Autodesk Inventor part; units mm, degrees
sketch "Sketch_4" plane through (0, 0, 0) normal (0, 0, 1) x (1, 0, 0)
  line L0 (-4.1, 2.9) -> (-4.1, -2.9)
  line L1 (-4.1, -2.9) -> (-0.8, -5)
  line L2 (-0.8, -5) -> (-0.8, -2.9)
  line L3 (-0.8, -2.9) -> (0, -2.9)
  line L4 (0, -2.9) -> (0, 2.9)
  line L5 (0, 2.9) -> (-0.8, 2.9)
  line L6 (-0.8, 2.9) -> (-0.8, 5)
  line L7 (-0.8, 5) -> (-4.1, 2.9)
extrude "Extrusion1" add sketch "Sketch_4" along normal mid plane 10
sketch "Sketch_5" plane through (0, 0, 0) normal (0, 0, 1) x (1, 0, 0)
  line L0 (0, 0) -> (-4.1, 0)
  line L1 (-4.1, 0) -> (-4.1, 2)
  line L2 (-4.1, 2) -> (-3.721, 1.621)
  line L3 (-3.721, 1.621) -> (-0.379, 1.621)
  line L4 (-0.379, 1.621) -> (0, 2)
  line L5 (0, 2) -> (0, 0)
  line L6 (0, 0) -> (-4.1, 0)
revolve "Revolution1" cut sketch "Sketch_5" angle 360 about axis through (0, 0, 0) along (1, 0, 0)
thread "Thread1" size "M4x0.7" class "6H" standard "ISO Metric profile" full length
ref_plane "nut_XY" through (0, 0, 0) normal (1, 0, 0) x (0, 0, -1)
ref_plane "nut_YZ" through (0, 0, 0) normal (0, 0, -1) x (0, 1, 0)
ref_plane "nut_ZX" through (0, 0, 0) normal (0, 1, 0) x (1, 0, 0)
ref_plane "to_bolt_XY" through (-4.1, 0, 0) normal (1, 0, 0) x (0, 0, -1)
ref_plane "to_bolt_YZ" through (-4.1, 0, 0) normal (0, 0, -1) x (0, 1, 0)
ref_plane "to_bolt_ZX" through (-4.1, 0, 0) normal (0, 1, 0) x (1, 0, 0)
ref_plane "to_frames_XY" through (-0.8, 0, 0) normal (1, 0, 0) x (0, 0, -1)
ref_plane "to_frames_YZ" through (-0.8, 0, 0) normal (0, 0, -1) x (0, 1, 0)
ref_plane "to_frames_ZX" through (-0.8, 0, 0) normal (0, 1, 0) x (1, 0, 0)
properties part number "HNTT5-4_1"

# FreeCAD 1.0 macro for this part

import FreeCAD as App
import Part
import Sketcher
from FreeCAD import Vector

doc = App.newDocument("Part")
body = doc.addObject("PartDesign::Body", "Body")

sketch1 = body.newObject("Sketcher::SketchObject", "Sketch")
sketch1.AttachmentSupport = (doc.getObject("XY_Plane"), [""])
sketch1.MapMode = "FlatFace"
sketch1.addGeometry([
    Part.LineSegment(Vector(-0.8, 5, 0), Vector(-4.1, 2.9, 0)),
    Part.LineSegment(Vector(-4.1, 2.9, 0), Vector(-4.1, -2.9, 0)),
    Part.LineSegment(Vector(-4.1, -2.9, 0), Vector(-0.8, -5, 0)),
    Part.LineSegment(Vector(-0.8, -5, 0), Vector(-0.8, -2.9, 0)),
    Part.LineSegment(Vector(-0.8, -2.9, 0), Vector(0, -2.9, 0)),
    Part.LineSegment(Vector(0, -2.9, 0), Vector(0, 2.9, 0)),
    Part.LineSegment(Vector(0, 2.9, 0), Vector(-0.8, 2.9, 0)),
    Part.LineSegment(Vector(-0.8, 2.9, 0), Vector(-0.8, 5, 0)),
], False)
sketch1.addConstraint([
    Sketcher.Constraint("Coincident", 0, 2, 1, 1),
    Sketcher.Constraint("Coincident", 1, 2, 2, 1),
    Sketcher.Constraint("Coincident", 2, 2, 3, 1),
    Sketcher.Constraint("Coincident", 3, 2, 4, 1),
    Sketcher.Constraint("Coincident", 4, 2, 5, 1),
    Sketcher.Constraint("Coincident", 5, 2, 6, 1),
    Sketcher.Constraint("Coincident", 6, 2, 7, 1),
    Sketcher.Constraint("Coincident", 7, 2, 0, 1),
    Sketcher.Constraint("Vertical", 1),
    Sketcher.Constraint("Vertical", 3),
    Sketcher.Constraint("Horizontal", 4),
    Sketcher.Constraint("Vertical", 5),
    Sketcher.Constraint("Horizontal", 6),
    Sketcher.Constraint("Vertical", 7),
    Sketcher.Constraint("Symmetric", 4, 2, 5, 2, -1, 1),
    Sketcher.Constraint("Symmetric", 2, 2, 7, 2, -1),
    Sketcher.Constraint("Horizontal", 1, 2, 3, 2),
    Sketcher.Constraint("Horizontal", 0, 2, 5, 2),
    Sketcher.Constraint("DistanceX", 4, 1, 4, 2, 0.8),
    Sketcher.Constraint("DistanceY", 1, 2, 1, 1, 5.8),
    Sketcher.Constraint("DistanceY", 3, 1, 3, 2, 2.1),
    Sketcher.Constraint("DistanceX", 0, 2, -1, 1, 4.1),
])
pad1 = body.newObject("PartDesign::Pad", "Pad")
pad1.Profile = sketch1
pad1.Length = 10
pad1.Midplane = True

sketch2 = body.newObject("Sketcher::SketchObject", "Sketch001")
sketch2.AttachmentSupport = (doc.getObject("XY_Plane"), [""])
sketch2.MapMode = "FlatFace"
sketch2.addGeometry([
    Part.LineSegment(Vector(-4.1, 0, 0), Vector(0, 0, 0)),
    Part.LineSegment(Vector(0, 0, 0), Vector(0, 2, 0)),
    Part.LineSegment(Vector(0, 2, 0), Vector(-0.4, 1.6, 0)),
    Part.LineSegment(Vector(-0.4, 1.6, 0), Vector(-3.7, 1.6, 0)),
    Part.LineSegment(Vector(-3.7, 1.6, 0), Vector(-4.1, 2, 0)),
    Part.LineSegment(Vector(-4.1, 2, 0), Vector(-4.1, 0, 0)),
], False)
sketch2.addConstraint([
    Sketcher.Constraint("Coincident", 0, 2, 1, 1),
    Sketcher.Constraint("Coincident", 1, 2, 2, 1),
    Sketcher.Constraint("Coincident", 2, 2, 3, 1),
    Sketcher.Constraint("Coincident", 3, 2, 4, 1),
    Sketcher.Constraint("Coincident", 4, 2, 5, 1),
    Sketcher.Constraint("Coincident", 5, 2, 0, 1),
    Sketcher.Constraint("Horizontal", 0),
    Sketcher.Constraint("Vertical", 1),
    Sketcher.Constraint("Horizontal", 3),
    Sketcher.Constraint("Vertical", 5),
    Sketcher.Constraint("Coincident", 0, 2, -1, 1),
    Sketcher.Constraint("Perpendicular", 2, 4),
    Sketcher.Constraint("Horizontal", 1, 2, 4, 2),
    Sketcher.Constraint("Equal", 2, 4),
    Sketcher.Constraint("DistanceY", 1, 1, 1, 2, 2.0),
    Sketcher.Constraint("DistanceX", 0, 1, 0, 2, 4.1),
    Sketcher.Constraint("DistanceX", 3, 2, 3, 1, 3.342),
])
groove = body.newObject("PartDesign::Groove", "Groove")
groove.Profile = sketch2
groove.ReferenceAxis = (sketch2, ["H_Axis"])
groove.Angle = 360

doc.recompute()
